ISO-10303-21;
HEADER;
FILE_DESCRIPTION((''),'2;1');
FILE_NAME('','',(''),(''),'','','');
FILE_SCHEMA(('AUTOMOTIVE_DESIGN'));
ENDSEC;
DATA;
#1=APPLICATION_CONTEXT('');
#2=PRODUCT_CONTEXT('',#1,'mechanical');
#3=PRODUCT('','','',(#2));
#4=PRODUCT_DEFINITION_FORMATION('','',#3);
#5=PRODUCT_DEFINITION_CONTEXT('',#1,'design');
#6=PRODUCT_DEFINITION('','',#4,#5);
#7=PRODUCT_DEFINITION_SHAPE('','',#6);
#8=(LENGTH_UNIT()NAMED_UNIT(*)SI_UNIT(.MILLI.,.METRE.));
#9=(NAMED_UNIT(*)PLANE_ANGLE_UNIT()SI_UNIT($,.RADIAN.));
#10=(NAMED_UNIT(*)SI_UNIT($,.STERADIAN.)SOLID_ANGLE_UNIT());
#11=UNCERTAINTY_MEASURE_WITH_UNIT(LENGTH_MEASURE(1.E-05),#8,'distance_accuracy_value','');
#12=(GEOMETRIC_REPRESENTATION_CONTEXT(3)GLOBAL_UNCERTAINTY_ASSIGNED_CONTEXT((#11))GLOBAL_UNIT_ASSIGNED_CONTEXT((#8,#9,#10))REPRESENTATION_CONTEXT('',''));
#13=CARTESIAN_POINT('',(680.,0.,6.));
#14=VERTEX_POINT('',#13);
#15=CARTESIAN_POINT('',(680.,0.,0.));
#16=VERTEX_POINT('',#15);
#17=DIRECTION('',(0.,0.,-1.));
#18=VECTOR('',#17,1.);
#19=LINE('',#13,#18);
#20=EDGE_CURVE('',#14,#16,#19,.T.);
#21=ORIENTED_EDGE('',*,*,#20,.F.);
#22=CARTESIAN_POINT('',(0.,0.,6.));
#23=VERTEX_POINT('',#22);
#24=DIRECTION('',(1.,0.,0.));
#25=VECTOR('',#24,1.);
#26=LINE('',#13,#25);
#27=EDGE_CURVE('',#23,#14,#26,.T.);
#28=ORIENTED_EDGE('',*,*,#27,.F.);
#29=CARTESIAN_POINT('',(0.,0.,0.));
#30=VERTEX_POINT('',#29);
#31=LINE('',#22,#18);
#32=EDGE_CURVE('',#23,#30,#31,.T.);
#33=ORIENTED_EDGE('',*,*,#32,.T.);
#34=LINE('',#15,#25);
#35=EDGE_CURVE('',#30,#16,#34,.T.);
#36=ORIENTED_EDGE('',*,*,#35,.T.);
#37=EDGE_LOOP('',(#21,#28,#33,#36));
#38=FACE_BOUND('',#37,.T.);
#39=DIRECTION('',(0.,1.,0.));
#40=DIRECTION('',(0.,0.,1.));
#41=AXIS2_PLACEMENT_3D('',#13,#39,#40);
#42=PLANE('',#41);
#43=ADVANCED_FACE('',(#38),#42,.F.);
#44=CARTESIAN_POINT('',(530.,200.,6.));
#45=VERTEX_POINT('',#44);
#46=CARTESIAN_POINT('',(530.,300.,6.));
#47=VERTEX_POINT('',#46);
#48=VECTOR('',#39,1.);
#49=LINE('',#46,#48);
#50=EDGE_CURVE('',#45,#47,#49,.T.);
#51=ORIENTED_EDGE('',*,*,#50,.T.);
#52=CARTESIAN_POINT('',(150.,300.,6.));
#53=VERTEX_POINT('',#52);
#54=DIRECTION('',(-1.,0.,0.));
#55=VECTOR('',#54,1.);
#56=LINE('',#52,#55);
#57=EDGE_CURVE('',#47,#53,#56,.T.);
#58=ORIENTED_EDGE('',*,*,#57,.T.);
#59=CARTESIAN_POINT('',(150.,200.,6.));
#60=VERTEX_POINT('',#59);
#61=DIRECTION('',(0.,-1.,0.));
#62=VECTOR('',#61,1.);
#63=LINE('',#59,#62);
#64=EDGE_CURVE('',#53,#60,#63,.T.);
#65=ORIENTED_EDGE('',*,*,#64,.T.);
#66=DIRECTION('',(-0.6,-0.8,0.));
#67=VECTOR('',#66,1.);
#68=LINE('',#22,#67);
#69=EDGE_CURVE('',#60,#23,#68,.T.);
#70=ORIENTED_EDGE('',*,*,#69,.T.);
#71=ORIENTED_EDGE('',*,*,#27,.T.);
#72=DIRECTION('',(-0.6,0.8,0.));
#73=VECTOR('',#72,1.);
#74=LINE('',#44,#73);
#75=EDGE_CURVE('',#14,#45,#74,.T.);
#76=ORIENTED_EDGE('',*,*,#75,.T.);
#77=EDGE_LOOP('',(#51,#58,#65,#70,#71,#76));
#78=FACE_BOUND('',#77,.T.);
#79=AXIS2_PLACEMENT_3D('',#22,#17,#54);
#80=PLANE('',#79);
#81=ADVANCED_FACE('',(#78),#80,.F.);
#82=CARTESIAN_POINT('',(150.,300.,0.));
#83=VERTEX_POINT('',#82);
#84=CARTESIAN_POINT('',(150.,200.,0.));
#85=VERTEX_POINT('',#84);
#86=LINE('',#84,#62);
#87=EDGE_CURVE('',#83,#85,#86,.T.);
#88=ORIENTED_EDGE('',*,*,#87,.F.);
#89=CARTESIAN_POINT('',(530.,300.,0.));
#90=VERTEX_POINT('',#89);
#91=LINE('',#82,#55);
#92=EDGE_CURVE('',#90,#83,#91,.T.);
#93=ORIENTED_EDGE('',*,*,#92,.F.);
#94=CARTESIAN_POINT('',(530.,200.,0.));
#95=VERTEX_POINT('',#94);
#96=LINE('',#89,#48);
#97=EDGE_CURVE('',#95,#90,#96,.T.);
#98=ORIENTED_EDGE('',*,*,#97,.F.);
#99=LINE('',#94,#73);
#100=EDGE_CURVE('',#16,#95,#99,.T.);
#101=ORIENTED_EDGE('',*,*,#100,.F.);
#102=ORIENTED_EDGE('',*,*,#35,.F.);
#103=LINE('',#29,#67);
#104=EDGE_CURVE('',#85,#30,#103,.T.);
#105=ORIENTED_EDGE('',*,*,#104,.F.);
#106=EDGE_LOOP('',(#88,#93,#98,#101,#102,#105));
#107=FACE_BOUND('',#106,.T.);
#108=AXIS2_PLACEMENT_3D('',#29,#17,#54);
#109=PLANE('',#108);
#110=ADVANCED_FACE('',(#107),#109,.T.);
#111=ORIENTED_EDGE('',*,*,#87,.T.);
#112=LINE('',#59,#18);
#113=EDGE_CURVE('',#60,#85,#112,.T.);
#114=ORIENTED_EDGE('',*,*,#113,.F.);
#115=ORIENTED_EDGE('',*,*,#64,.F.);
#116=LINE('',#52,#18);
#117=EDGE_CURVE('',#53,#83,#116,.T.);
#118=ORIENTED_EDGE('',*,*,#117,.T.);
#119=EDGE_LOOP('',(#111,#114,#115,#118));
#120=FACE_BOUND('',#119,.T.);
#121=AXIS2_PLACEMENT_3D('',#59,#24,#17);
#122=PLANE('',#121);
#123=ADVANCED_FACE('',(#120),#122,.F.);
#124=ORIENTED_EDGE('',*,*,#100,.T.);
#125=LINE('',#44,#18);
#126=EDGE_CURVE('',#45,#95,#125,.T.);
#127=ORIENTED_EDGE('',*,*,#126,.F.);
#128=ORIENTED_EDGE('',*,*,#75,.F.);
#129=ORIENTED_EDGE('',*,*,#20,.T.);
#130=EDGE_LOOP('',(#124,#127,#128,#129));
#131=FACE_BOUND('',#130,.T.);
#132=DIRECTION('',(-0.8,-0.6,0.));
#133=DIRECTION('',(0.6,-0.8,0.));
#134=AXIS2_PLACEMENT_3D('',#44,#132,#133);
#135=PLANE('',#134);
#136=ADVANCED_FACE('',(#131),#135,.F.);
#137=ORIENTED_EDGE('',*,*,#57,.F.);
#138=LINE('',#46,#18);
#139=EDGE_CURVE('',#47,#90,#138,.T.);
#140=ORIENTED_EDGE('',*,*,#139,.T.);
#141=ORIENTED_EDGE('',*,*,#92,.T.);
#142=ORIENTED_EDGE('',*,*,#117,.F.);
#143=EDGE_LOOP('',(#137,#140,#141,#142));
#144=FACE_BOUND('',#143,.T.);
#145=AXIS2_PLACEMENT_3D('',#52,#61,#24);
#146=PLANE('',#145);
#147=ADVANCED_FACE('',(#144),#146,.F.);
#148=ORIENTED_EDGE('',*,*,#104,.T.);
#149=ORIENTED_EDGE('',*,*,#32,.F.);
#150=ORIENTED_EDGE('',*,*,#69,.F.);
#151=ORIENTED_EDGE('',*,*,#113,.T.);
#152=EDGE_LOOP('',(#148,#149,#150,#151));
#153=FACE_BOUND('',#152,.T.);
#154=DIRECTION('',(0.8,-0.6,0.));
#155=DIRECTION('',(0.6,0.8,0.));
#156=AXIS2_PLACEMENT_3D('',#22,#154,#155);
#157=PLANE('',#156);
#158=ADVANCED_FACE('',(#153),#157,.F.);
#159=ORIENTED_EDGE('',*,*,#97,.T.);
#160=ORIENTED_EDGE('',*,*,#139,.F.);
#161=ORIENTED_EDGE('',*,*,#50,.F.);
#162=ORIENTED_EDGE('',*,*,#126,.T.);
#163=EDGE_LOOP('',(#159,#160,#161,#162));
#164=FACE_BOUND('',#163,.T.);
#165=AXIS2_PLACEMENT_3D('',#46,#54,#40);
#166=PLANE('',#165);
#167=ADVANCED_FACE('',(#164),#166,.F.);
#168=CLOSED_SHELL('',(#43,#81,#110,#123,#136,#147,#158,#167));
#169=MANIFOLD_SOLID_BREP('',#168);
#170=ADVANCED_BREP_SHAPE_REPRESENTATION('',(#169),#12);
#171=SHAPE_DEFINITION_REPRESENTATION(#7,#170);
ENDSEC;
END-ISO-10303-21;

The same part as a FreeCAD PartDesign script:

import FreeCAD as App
import Part
import Sketcher

doc = App.newDocument("Part")
body = doc.addObject("PartDesign::Body", "Body")

sketch1 = doc.addObject("Sketcher::SketchObject", "Sketch")
body.addObject(sketch1)
sketch1.AttachmentSupport = (doc.XY_Plane, [""])
sketch1.MapMode = "FlatFace"
sketch1.addGeometry(Part.LineSegment(App.Vector(150, 200, 0), App.Vector(0, 0, 0)), False)
sketch1.addGeometry(Part.LineSegment(App.Vector(0, 0, 0), App.Vector(680, 0, 0)), False)
sketch1.addGeometry(Part.LineSegment(App.Vector(680, 0, 0), App.Vector(530, 200, 0)), False)
sketch1.addGeometry(Part.LineSegment(App.Vector(530, 200, 0), App.Vector(530, 300, 0)), False)
sketch1.addGeometry(Part.LineSegment(App.Vector(530, 300, 0), App.Vector(150, 300, 0)), False)
sketch1.addGeometry(Part.LineSegment(App.Vector(150, 300, 0), App.Vector(150, 200, 0)), False)
sketch1.addConstraint(Sketcher.Constraint("Coincident", 0, 2, 1, 1))
sketch1.addConstraint(Sketcher.Constraint("Coincident", 1, 2, 2, 1))
sketch1.addConstraint(Sketcher.Constraint("Coincident", 2, 2, 3, 1))
sketch1.addConstraint(Sketcher.Constraint("Coincident", 3, 2, 4, 1))
sketch1.addConstraint(Sketcher.Constraint("Coincident", 4, 2, 5, 1))
sketch1.addConstraint(Sketcher.Constraint("Coincident", 5, 2, 0, 1))
sketch1.addConstraint(Sketcher.Constraint("Horizontal", 1))
sketch1.addConstraint(Sketcher.Constraint("Vertical", 3))
sketch1.addConstraint(Sketcher.Constraint("Horizontal", 4))
sketch1.addConstraint(Sketcher.Constraint("Vertical", 5))
sketch1.addConstraint(Sketcher.Constraint("Coincident", 0, 2, -1, 1))
sketch1.addConstraint(Sketcher.Constraint("Horizontal", 2, 2, 5, 2))
sketch1.addConstraint(Sketcher.Constraint("Equal", 0, 2))
sketch1.addConstraint(Sketcher.Constraint("DistanceX", 1, 1, 1, 2, 680.0))
sketch1.addConstraint(Sketcher.Constraint("DistanceX", 4, 2, 4, 1, 380.0))
sketch1.addConstraint(Sketcher.Constraint("DistanceY", 3, 1, 3, 2, 100.0))
sketch1.addConstraint(Sketcher.Constraint("Distance", 0, 250.0))
pad1 = doc.addObject("PartDesign::Pad", "Pad")
body.addObject(pad1)
pad1.Profile = sketch1
pad1.Length = 6

doc.recompute()
